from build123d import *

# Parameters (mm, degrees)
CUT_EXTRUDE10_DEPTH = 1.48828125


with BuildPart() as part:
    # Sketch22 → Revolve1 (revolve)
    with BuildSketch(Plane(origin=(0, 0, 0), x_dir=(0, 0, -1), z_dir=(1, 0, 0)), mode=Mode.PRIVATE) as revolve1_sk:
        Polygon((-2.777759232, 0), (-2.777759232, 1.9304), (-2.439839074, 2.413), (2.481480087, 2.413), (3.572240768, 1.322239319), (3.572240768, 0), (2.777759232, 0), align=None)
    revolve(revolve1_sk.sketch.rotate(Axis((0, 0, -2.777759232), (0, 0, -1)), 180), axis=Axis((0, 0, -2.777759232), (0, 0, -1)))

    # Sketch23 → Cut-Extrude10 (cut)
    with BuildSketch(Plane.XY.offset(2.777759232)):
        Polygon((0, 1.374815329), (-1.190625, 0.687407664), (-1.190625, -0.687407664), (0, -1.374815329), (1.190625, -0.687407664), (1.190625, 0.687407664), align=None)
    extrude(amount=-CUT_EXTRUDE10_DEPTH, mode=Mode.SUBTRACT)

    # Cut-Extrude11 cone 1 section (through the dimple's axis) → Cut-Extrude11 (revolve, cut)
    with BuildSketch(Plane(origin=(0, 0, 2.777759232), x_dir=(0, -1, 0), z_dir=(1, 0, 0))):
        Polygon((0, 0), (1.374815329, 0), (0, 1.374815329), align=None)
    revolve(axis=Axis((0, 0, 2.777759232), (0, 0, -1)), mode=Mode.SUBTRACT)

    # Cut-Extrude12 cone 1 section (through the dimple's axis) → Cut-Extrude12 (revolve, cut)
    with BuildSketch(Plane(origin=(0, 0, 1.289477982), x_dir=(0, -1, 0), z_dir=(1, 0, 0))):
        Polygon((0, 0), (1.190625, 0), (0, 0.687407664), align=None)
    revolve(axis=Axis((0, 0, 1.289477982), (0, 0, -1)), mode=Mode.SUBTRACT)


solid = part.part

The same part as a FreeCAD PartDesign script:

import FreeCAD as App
import Part
import Sketcher
from FreeCAD import Vector
Q = App.Units.Quantity

doc = App.newDocument("Part")
body = doc.addObject("PartDesign::Body", "Body")

# Sketch on YZ plane
sketch1 = body.newObject("Sketcher::SketchObject", "Sketch")
sketch1.AttachmentSupport = (doc.getObject("YZ_Plane"), [""])
sketch1.MapMode = "FlatFace"
sketch1.addGeometry(Part.LineSegment(Vector(1.9, 2.8, 0), Vector(0, 2.8, 0)), False)
sketch1.addGeometry(Part.LineSegment(Vector(0, 2.8, 0), Vector(0, -3.6, 0)), False)
sketch1.addGeometry(Part.LineSegment(Vector(0, -3.6, 0), Vector(1.3, -3.6, 0)), False)
sketch1.addGeometry(Part.LineSegment(Vector(1.3, -3.6, 0), Vector(2.4, -2.5, 0)), False)
sketch1.addGeometry(Part.LineSegment(Vector(2.4, -2.5, 0), Vector(2.4, 2.4, 0)), False)
sketch1.addGeometry(Part.LineSegment(Vector(2.4, 2.4, 0), Vector(1.9, 2.8, 0)), False)
sketch1.addConstraint(Sketcher.Constraint("Coincident", 0, 2, 1, 1))
sketch1.addConstraint(Sketcher.Constraint("Coincident", 1, 2, 2, 1))
sketch1.addConstraint(Sketcher.Constraint("Coincident", 2, 2, 3, 1))
sketch1.addConstraint(Sketcher.Constraint("Coincident", 3, 2, 4, 1))
sketch1.addConstraint(Sketcher.Constraint("Coincident", 4, 2, 5, 1))
sketch1.addConstraint(Sketcher.Constraint("Coincident", 5, 2, 0, 1))
sketch1.addConstraint(Sketcher.Constraint("Horizontal", 0))
sketch1.addConstraint(Sketcher.Constraint("Vertical", 1))
sketch1.addConstraint(Sketcher.Constraint("Horizontal", 2))
sketch1.addConstraint(Sketcher.Constraint("Vertical", 4))
sketch1.addConstraint(Sketcher.Constraint("PointOnObject", 0, 2, -2))
sketch1.addConstraint(Sketcher.Constraint("Angle", 3, Q("45 deg")))
sketch1.addConstraint(Sketcher.Constraint("Angle", 5, Q("145 deg")))
sketch1.addConstraint(Sketcher.Constraint("DistanceY", 1, 2, 1, 1, Q("0.25 in")))
sketch1.addConstraint(Sketcher.Constraint("DistanceX", 0, 2, 0, 1, Q("0.076 in")))
sketch1.addConstraint(Sketcher.Constraint("DistanceX", -1, 1, 3, 2, Q("0.095 in")))
sketch1.addConstraint(Sketcher.Constraint("DistanceX", 2, 1, 2, 2, 1.322239))
sketch1.addConstraint(Sketcher.Constraint("DistanceY", -1, 1, 0, 2, 2.777759))
revolution = body.newObject("PartDesign::Revolution", "Revolution")
revolution.Profile = sketch1
revolution.ReferenceAxis = (sketch1, ["V_Axis"])
revolution.Angle = 360

# Sketch on XY plane
sketch2 = body.newObject("Sketcher::SketchObject", "Sketch001")
sketch2.AttachmentSupport = (doc.getObject("XY_Plane"), [""])
sketch2.MapMode = "FlatFace"
sketch2.AttachmentOffset = App.Placement(Vector(0, 0, 2.777759), App.Rotation())
sketch2.addGeometry(Part.LineSegment(Vector(0, 1.4, 0), Vector(-1.2, 0.7, 0)), False)
sketch2.addGeometry(Part.LineSegment(Vector(-1.2, 0.7, 0), Vector(-1.2, -0.7, 0)), False)
sketch2.addGeometry(Part.LineSegment(Vector(-1.2, -0.7, 0), Vector(0, -1.4, 0)), False)
sketch2.addGeometry(Part.LineSegment(Vector(0, -1.4, 0), Vector(1.2, -0.7, 0)), False)
sketch2.addGeometry(Part.LineSegment(Vector(1.2, -0.7, 0), Vector(1.2, 0.7, 0)), False)
sketch2.addGeometry(Part.LineSegment(Vector(1.2, 0.7, 0), Vector(0, 1.4, 0)), False)
sketch2.addConstraint(Sketcher.Constraint("Coincident", 0, 2, 1, 1))
sketch2.addConstraint(Sketcher.Constraint("Coincident", 1, 2, 2, 1))
sketch2.addConstraint(Sketcher.Constraint("Coincident", 2, 2, 3, 1))
sketch2.addConstraint(Sketcher.Constraint("Coincident", 3, 2, 4, 1))
sketch2.addConstraint(Sketcher.Constraint("Coincident", 4, 2, 5, 1))
sketch2.addConstraint(Sketcher.Constraint("Coincident", 5, 2, 0, 1))
sketch2.addConstraint(Sketcher.Constraint("Vertical", 1))
sketch2.addConstraint(Sketcher.Constraint("Vertical", 4))
sketch2.addConstraint(Sketcher.Constraint("Symmetric", 0, 2, 3, 2, -1, 1))
sketch2.addConstraint(Sketcher.Constraint("Symmetric", 2, 2, 5, 2, -1, 1))
sketch2.addConstraint(Sketcher.Constraint("PointOnObject", 2, 2, -2))
sketch2.addConstraint(Sketcher.Constraint("Parallel", 2, 5))
sketch2.addConstraint(Sketcher.Constraint("Horizontal", 1, 2, 3, 2))
sketch2.addConstraint(Sketcher.Constraint("Angle", 0, Q("-150 deg")))
sketch2.addConstraint(Sketcher.Constraint("DistanceX", 0, 2, -1, 1, Q("0.046875 in")))
sketch2.addConstraint(Sketcher.Constraint("DistanceY", 1, 2, 1, 1, 1.374815))
pocket1 = body.newObject("PartDesign::Pocket", "Pocket")
pocket1.Profile = sketch2
pocket1.Length = 1.488281

# Sketch on YZ plane
sketch3 = body.newObject("Sketcher::SketchObject", "Sketch002")
sketch3.AttachmentSupport = (doc.getObject("YZ_Plane"), [""])
sketch3.MapMode = "FlatFace"
sketch3.addGeometry(Part.LineSegment(Vector(0, 2.8, 0), Vector(-1.4, 2.8, 0)), False)
sketch3.addGeometry(Part.LineSegment(Vector(-1.4, 2.8, 0), Vector(0, 1.4, 0)), False)
sketch3.addGeometry(Part.LineSegment(Vector(0, 1.4, 0), Vector(0, 2.8, 0)), False)
sketch3.addConstraint(Sketcher.Constraint("Coincident", 0, 2, 1, 1))
sketch3.addConstraint(Sketcher.Constraint("Coincident", 1, 2, 2, 1))
sketch3.addConstraint(Sketcher.Constraint("Coincident", 2, 2, 0, 1))
sketch3.addConstraint(Sketcher.Constraint("Horizontal", 0))
sketch3.addConstraint(Sketcher.Constraint("Vertical", 2))
sketch3.addConstraint(Sketcher.Constraint("PointOnObject", 1, 2, -2))
sketch3.addConstraint(Sketcher.Constraint("Equal", 0, 2))
sketch3.addConstraint(Sketcher.Constraint("DistanceX", 0, 2, 0, 1, 1.374815))
sketch3.addConstraint(Sketcher.Constraint("DistanceY", -1, 1, 0, 2, 2.777759))
groove = body.newObject("PartDesign::Groove", "Groove")
groove.Profile = sketch3
groove.ReferenceAxis = (sketch3, ["V_Axis"])
groove.Angle = 360

# Sketch on YZ plane
sketch4 = body.newObject("Sketcher::SketchObject", "Sketch003")
sketch4.AttachmentSupport = (doc.getObject("YZ_Plane"), [""])
sketch4.MapMode = "FlatFace"
sketch4.addGeometry(Part.LineSegment(Vector(0, 1.3, 0), Vector(-1.2, 1.3, 0)), False)
sketch4.addGeometry(Part.LineSegment(Vector(-1.2, 1.3, 0), Vector(0, 0.6, 0)), False)
sketch4.addGeometry(Part.LineSegment(Vector(0, 0.6, 0), Vector(0, 1.3, 0)), False)
sketch4.addConstraint(Sketcher.Constraint("Coincident", 0, 2, 1, 1))
sketch4.addConstraint(Sketcher.Constraint("Coincident", 1, 2, 2, 1))
sketch4.addConstraint(Sketcher.Constraint("Coincident", 2, 2, 0, 1))
sketch4.addConstraint(Sketcher.Constraint("Horizontal", 0))
sketch4.addConstraint(Sketcher.Constraint("Vertical", 2))
sketch4.addConstraint(Sketcher.Constraint("PointOnObject", 1, 2, -2))
sketch4.addConstraint(Sketcher.Constraint("Angle", 1, Q("-30 deg")))
sketch4.addConstraint(Sketcher.Constraint("DistanceX", 0, 2, 0, 1, Q("0.046875 in")))
sketch4.addConstraint(Sketcher.Constraint("DistanceY", -1, 1, 1, 2, 0.60207))
groove2 = body.newObject("PartDesign::Groove", "Groove001")
groove2.Profile = sketch4
groove2.ReferenceAxis = (sketch4, ["V_Axis"])
groove2.Angle = 360

doc.recompute()
